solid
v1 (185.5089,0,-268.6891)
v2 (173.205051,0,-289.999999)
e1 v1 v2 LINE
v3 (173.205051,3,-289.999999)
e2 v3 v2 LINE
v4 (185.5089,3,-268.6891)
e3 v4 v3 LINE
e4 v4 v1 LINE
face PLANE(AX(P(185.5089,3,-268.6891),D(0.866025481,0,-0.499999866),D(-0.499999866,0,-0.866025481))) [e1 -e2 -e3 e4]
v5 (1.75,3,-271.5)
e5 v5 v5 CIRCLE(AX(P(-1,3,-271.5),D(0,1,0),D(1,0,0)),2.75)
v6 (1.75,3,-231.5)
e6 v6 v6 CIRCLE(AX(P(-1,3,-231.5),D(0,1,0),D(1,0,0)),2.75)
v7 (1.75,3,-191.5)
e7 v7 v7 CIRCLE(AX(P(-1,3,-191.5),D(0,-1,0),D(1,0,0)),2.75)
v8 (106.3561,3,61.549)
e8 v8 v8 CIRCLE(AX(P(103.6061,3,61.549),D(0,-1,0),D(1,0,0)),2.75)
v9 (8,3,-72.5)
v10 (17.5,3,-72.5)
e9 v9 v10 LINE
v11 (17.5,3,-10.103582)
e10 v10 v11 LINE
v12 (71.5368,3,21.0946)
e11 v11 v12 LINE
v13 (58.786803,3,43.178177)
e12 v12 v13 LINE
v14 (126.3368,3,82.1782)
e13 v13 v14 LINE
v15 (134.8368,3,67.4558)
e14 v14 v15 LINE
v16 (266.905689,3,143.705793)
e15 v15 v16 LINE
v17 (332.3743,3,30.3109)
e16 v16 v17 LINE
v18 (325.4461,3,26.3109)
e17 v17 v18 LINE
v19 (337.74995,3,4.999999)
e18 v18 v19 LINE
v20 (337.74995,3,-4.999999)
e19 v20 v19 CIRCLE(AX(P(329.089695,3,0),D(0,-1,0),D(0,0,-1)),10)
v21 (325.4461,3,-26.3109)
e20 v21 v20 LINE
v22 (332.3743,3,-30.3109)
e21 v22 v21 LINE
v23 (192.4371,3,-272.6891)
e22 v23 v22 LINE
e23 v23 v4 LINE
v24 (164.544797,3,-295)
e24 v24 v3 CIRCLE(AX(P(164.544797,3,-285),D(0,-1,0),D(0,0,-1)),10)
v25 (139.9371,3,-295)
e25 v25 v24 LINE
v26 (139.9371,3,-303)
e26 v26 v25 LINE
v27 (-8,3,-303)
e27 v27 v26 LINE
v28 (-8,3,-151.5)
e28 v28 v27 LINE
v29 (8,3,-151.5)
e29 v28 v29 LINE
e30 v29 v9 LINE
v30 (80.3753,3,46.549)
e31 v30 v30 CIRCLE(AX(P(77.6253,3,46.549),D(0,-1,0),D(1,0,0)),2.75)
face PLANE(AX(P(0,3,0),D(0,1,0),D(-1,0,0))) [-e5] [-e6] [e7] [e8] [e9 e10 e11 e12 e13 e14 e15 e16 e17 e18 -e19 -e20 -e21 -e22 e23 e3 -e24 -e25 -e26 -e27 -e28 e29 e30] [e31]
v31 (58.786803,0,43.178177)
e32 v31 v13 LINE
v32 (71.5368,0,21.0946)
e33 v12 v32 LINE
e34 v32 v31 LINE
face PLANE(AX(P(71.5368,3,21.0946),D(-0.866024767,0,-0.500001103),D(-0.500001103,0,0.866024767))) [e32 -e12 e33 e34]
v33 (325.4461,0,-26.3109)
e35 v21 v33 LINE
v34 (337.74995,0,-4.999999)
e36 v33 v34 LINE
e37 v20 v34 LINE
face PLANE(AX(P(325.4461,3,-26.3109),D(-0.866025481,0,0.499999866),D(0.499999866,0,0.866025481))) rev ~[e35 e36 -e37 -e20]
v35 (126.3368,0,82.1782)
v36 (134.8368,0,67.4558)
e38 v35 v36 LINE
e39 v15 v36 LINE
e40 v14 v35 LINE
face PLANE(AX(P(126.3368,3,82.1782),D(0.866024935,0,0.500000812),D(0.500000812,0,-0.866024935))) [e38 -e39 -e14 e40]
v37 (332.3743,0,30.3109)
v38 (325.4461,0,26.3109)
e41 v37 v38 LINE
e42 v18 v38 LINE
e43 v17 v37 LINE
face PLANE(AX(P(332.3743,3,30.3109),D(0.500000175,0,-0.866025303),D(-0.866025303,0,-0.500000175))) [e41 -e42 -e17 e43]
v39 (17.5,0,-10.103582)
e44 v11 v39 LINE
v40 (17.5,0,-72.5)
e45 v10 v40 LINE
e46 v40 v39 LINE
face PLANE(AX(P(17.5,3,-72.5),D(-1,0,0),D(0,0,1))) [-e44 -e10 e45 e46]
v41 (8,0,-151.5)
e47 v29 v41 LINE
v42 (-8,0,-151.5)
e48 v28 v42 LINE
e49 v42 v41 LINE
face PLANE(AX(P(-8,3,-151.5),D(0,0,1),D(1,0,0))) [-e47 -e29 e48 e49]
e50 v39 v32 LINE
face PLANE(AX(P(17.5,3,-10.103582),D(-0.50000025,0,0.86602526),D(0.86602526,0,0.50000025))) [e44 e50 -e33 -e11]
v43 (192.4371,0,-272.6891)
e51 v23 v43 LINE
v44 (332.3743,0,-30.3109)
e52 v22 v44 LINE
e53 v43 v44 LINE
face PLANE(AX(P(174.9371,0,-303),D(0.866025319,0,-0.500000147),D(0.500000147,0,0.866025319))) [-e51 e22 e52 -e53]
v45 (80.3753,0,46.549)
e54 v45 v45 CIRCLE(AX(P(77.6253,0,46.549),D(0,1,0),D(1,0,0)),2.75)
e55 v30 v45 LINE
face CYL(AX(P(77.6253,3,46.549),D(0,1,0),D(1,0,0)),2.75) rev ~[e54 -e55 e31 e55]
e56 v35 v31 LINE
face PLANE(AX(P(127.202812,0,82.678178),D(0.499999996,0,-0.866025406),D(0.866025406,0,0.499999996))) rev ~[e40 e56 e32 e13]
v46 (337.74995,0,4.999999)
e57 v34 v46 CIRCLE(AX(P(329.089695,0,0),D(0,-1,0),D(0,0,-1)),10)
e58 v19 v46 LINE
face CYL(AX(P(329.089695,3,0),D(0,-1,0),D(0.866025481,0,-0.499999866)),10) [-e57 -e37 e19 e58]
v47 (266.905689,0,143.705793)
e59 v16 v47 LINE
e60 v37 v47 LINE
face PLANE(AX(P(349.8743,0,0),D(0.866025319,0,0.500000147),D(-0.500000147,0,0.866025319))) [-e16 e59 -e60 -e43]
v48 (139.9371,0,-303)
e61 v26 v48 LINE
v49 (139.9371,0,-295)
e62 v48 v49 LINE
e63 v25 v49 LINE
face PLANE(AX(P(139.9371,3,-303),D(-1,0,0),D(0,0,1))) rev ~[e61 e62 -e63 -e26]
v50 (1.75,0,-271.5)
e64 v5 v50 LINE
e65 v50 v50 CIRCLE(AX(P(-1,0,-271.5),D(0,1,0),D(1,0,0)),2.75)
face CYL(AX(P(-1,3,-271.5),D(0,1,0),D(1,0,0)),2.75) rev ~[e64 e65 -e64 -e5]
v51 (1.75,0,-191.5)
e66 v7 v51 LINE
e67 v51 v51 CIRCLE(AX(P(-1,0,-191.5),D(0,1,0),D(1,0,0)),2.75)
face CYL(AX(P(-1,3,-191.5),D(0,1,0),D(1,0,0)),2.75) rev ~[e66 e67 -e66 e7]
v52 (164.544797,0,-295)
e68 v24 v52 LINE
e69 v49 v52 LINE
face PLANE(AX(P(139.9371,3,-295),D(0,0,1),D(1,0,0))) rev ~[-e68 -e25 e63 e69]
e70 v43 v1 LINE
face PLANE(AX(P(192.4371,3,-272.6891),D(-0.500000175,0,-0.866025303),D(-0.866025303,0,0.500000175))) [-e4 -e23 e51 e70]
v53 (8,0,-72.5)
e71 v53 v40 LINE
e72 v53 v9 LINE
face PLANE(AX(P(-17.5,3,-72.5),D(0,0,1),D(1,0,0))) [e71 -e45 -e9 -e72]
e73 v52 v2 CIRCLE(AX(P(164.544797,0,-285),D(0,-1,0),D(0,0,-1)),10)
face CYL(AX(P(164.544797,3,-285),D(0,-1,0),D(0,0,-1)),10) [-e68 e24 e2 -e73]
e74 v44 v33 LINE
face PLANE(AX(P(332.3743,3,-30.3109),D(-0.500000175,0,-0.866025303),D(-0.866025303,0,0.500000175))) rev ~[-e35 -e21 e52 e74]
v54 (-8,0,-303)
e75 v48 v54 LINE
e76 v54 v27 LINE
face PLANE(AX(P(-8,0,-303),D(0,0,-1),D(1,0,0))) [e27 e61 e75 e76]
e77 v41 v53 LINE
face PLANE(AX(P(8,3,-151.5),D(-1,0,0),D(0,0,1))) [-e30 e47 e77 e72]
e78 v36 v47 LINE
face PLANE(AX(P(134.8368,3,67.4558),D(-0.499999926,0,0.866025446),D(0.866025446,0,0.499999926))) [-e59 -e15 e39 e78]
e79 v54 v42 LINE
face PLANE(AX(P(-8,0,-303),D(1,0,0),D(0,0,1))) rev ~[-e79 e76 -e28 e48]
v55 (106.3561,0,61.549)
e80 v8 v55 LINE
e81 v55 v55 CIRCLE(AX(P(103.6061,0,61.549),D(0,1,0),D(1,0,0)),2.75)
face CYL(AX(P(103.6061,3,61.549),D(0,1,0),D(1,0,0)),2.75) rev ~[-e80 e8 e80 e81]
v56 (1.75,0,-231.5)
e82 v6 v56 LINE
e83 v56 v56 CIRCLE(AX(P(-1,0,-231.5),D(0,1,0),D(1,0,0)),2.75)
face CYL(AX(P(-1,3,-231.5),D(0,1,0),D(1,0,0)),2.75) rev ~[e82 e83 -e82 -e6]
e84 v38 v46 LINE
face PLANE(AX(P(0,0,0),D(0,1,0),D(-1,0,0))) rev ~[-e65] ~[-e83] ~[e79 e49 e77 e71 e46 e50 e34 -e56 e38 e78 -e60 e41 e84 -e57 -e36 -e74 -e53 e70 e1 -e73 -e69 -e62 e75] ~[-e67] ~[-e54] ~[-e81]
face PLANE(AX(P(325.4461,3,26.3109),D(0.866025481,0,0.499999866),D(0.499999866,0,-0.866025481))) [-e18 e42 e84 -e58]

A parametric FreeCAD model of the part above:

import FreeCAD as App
import Part
import Sketcher

V = App.Vector
Q = App.Units.Quantity


def edges_at(feature, points):
    """Names of the edges that pass closest to the given points."""
    edges = feature.Shape.Edges
    near = lambda p: min(range(len(edges)), key=lambda i: edges[i].distToShape(Part.Vertex(*p))[0])
    return sorted({f"Edge{near(p) + 1}" for p in points})


def add_polygon(sketch, points):
    """Adds a closed chain of lines whose ends are joined by coincident constraints."""
    first, n = sketch.GeometryCount, len(points)
    for a, b in zip(points, points[1:] + points[:1]):
        sketch.addGeometry(Part.LineSegment(App.Vector(*a, 0), App.Vector(*b, 0)), False)
    for i in range(n):
        sketch.addConstraint(Sketcher.Constraint("Coincident", first + i, 2, first + (i + 1) % n, 1))

doc = App.newDocument("Part")
body = doc.addObject("PartDesign::Body", "Body")

sketch1 = body.newObject("Sketcher::SketchObject", "Sketch")
sketch1.AttachmentSupport = (doc.getObject("XZ_Plane"), [""])
sketch1.MapMode = "FlatFace"
add_polygon(sketch1, [(-8, -303), (-8, 0), (-3.2, 5.5), (-4, 6.9), (258.4, 158.4), (349.9, 0), (174.9, -303)])
sketch1.addConstraint(Sketcher.Constraint("Vertical", 0))
sketch1.addConstraint(Sketcher.Constraint("Horizontal", 6))
sketch1.addConstraint(Sketcher.Constraint("PointOnObject", 0, 2, -1))
sketch1.addConstraint(Sketcher.Constraint("PointOnObject", 4, 2, -1))
sketch1.addConstraint(Sketcher.Constraint("Perpendicular", 2, 3))
sketch1.addConstraint(Sketcher.Constraint("Perpendicular", 3, 4))
sketch1.addConstraint(Sketcher.Constraint("DistanceY", 0, 1, 0, 2, Q("303 mm")))
sketch1.addConstraint(Sketcher.Constraint("Distance", 3, Q("303 mm")))
sketch1.addConstraint(Sketcher.Constraint("DistanceX", 0, 2, -1, 1, Q("8 mm")))
sketch1.addConstraint(Sketcher.Constraint("Angle", 2, Q("120 deg")))
sketch1.addConstraint(Sketcher.Constraint("Angle", 5, Q("-120 deg")))
sketch1.addConstraint(Sketcher.Constraint("DistanceX", 2, 2, -1, 1, Q("4 mm")))
sketch1.addConstraint(Sketcher.Constraint("Distance", 2, Q("1.6 mm")))
sketch1.addConstraint(Sketcher.Constraint("DistanceX", 6, 2, 6, 1, Q("182.937 mm")))
pad1 = body.newObject("PartDesign::Pad", "Pad")
pad1.Profile = sketch1
pad1.Length = 3
pad1.Reversed = True

sketch2 = body.newObject("Sketcher::SketchObject", "Sketch001")
sketch2.AttachmentSupport = (doc.getObject("XZ_Plane"), [""])
sketch2.MapMode = "FlatFace"
sketch2.AttachmentOffset = App.Placement(V(0, 0, -3), App.Rotation())
add_polygon(sketch2, [(8, -152), (-8, -152), (-8, 0), (8, 0)])
add_polygon(sketch2, [(135, 67), (126, 82), (258, 158), (267, 144)])
sketch2.addConstraint(Sketcher.Constraint("Horizontal", 0))
sketch2.addConstraint(Sketcher.Constraint("Vertical", 1))
sketch2.addConstraint(Sketcher.Constraint("Horizontal", 2))
sketch2.addConstraint(Sketcher.Constraint("Vertical", 3))
sketch2.addConstraint(Sketcher.Constraint("Symmetric", 1, 2, 2, 2, -1, 1))
sketch2.addConstraint(Sketcher.Constraint("Perpendicular", 4, 5))
sketch2.addConstraint(Sketcher.Constraint("Perpendicular", 5, 6))
sketch2.addConstraint(Sketcher.Constraint("Perpendicular", 6, 7))
sketch2.addConstraint(Sketcher.Constraint("DistanceX", 0, 2, 0, 1, Q("16 mm")))
sketch2.addConstraint(Sketcher.Constraint("Distance", 4, Q("17 mm")))
sketch2.addConstraint(Sketcher.Constraint("DistanceY", 1, 1, 1, 2, Q("151.5 mm")))
sketch2.addConstraint(Sketcher.Constraint("Distance", 5, Q("152.5 mm")))
sketch2.addConstraint(Sketcher.Constraint("Angle", 4, Q("120 deg")))
sketch2.addConstraint(Sketcher.Constraint("DistanceX", -1, 1, 4, 2, Q("126.3368 mm")))
sketch2.addConstraint(Sketcher.Constraint("DistanceY", -1, 1, 4, 2, Q("82.1782 mm")))
pocket1 = body.newObject("PartDesign::Pocket", "Pocket")
pocket1.Profile = sketch2
pocket1.Length = 3
pocket1.Reversed = True

sketch3 = body.newObject("Sketcher::SketchObject", "Sketch002")
sketch3.AttachmentSupport = (doc.getObject("XZ_Plane"), [""])
sketch3.MapMode = "FlatFace"
sketch3.AttachmentOffset = App.Placement(V(0, 0, -3), App.Rotation())
add_polygon(sketch3, [(140, -295), (170, -295), (186, -269), (192, -273), (175, -303), (140, -303)])
add_polygon(sketch3, [(350, 0), (332, -30), (325, -26), (341, 0), (325, 26), (332, 30)])
sketch3.addConstraint(Sketcher.Constraint("Horizontal", 0))
sketch3.addConstraint(Sketcher.Constraint("Horizontal", 4))
sketch3.addConstraint(Sketcher.Constraint("Vertical", 5))
sketch3.addConstraint(Sketcher.Constraint("Symmetric", 7, 2, 9, 2, -1))
sketch3.addConstraint(Sketcher.Constraint("Symmetric", 6, 2, 10, 2, -1))
sketch3.addConstraint(Sketcher.Constraint("PointOnObject", 8, 2, -1))
sketch3.addConstraint(Sketcher.Constraint("PointOnObject", 11, 2, -1))
sketch3.addConstraint(Sketcher.Constraint("Perpendicular", 1, 2))
sketch3.addConstraint(Sketcher.Constraint("Perpendicular", 2, 3))
sketch3.addConstraint(Sketcher.Constraint("Parallel", 3, 6))
sketch3.addConstraint(Sketcher.Constraint("Perpendicular", 6, 7))
sketch3.addConstraint(Sketcher.Constraint("Perpendicular", 7, 8))
sketch3.addConstraint(Sketcher.Constraint("Equal", 3, 6))
sketch3.addConstraint(Sketcher.Constraint("Equal", 2, 7))
sketch3.addConstraint(Sketcher.Constraint("Equal", 1, 8))
sketch3.addConstraint(Sketcher.Constraint("DistanceX", 4, 2, 4, 1, Q("35 mm")))
sketch3.addConstraint(Sketcher.Constraint("DistanceY", 5, 1, 5, 2, Q("8 mm")))
sketch3.addConstraint(Sketcher.Constraint("Angle", 3, Q("-120 deg")))
sketch3.addConstraint(Sketcher.Constraint("Distance", 3, Q("35 mm")))
sketch3.addConstraint(Sketcher.Constraint("DistanceY", 0, 2, -1, 1, Q("295 mm")))
sketch3.addConstraint(Sketcher.Constraint("DistanceX", -1, 1, 1, 2, Q("185.509 mm")))
sketch3.addConstraint(Sketcher.Constraint("DistanceX", -1, 1, 7, 2, Q("325.446 mm")))
pocket2 = body.newObject("PartDesign::Pocket", "Pocket001")
pocket2.Profile = sketch3
pocket2.Length = 3
pocket2.Reversed = True

sketch4 = body.newObject("Sketcher::SketchObject", "Sketch003")
sketch4.AttachmentSupport = (doc.getObject("XZ_Plane"), [""])
sketch4.MapMode = "FlatFace"
sketch4.AttachmentOffset = App.Placement(V(0, 0, -3), App.Rotation())
add_polygon(sketch4, [(-18, -30), (-54, -51), (-72, -21), (-18, 10), (-18, 72), (18, 72), (18, 30), (54, 51), (72, 21), (18, -10), (18, -72), (-18, -72)])
sketch4.addConstraint(Sketcher.Constraint("Vertical", 3))
sketch4.addConstraint(Sketcher.Constraint("Horizontal", 4))
sketch4.addConstraint(Sketcher.Constraint("Vertical", 5))
sketch4.addConstraint(Sketcher.Constraint("Vertical", 9))
sketch4.addConstraint(Sketcher.Constraint("Horizontal", 10))
sketch4.addConstraint(Sketcher.Constraint("Vertical", 11))
sketch4.addConstraint(Sketcher.Constraint("Symmetric", 0, 2, 6, 2, -1, 1))
sketch4.addConstraint(Sketcher.Constraint("Symmetric", 1, 2, 7, 2, -1, 1))
sketch4.addConstraint(Sketcher.Constraint("Symmetric", 2, 2, 8, 2, -1, 1))
sketch4.addConstraint(Sketcher.Constraint("Symmetric", 4, 2, 10, 2, -1, 1))
sketch4.addConstraint(Sketcher.Constraint("Perpendicular", 0, 1))
sketch4.addConstraint(Sketcher.Constraint("Perpendicular", 1, 2))
sketch4.addConstraint(Sketcher.Constraint("Parallel", 2, 6))
sketch4.addConstraint(Sketcher.Constraint("Vertical", 5, 2, 8, 2))
sketch4.addConstraint(Sketcher.Constraint("DistanceX", 4, 1, 4, 2, Q("35 mm")))
sketch4.addConstraint(Sketcher.Constraint("Angle", 2, Q("30 deg")))
sketch4.addConstraint(Sketcher.Constraint("Distance", 1, Q("35 mm")))
sketch4.addConstraint(Sketcher.Constraint("DistanceY", -1, 1, 3, 2, Q("72.5 mm")))
sketch4.addConstraint(Sketcher.Constraint("DistanceY", 1, 2, 6, 2, Q("72.5 mm")))
sketch4.addConstraint(Sketcher.Constraint("Distance", 0, Q("42.189 mm")))
pocket3 = body.newObject("PartDesign::Pocket", "Pocket002")
pocket3.Profile = sketch4
pocket3.Length = 3
pocket3.Reversed = True

sketch5 = body.newObject("Sketcher::SketchObject", "Sketch004")
sketch5.AttachmentSupport = (doc.getObject("XZ_Plane"), [""])
sketch5.MapMode = "FlatFace"
sketch5.AttachmentOffset = App.Placement(V(0, 0, -3), App.Rotation())
sketch5.addGeometry(Part.Circle(V(-1, -191.5, 0), V(0, 0, 1), 2.8), False)
sketch5.addGeometry(Part.Circle(V(-1, -231.5, 0), V(0, 0, 1), 2.8), False)
sketch5.addGeometry(Part.Circle(V(-1, -271.5, 0), V(0, 0, 1), 2.8), False)
sketch5.addGeometry(Part.Circle(V(103.6, 61.5, 0), V(0, 0, 1), 2.8), False)
sketch5.addGeometry(Part.Circle(V(77.6, 46.5, 0), V(0, 0, 1), 2.8), False)
sketch5.addConstraint(Sketcher.Constraint("Equal", 0, 1))
sketch5.addConstraint(Sketcher.Constraint("Equal", 1, 2))
sketch5.addConstraint(Sketcher.Constraint("Equal", 2, 3))
sketch5.addConstraint(Sketcher.Constraint("Equal", 3, 4))
sketch5.addConstraint(Sketcher.Constraint("Vertical", 0, 3, 1, 3))
sketch5.addConstraint(Sketcher.Constraint("Vertical", 1, 3, 2, 3))
sketch5.addConstraint(Sketcher.Constraint("Diameter", 0, Q("5.5 mm")))
sketch5.addConstraint(Sketcher.Constraint("DistanceX", 0, 3, -1, 1, Q("1 mm")))
sketch5.addConstraint(Sketcher.Constraint("DistanceY", 1, 3, 0, 3, Q("40 mm")))
sketch5.addConstraint(Sketcher.Constraint("DistanceY", 2, 3, 1, 3, Q("40 mm")))
sketch5.addConstraint(Sketcher.Constraint("DistanceY", 4, 3, 3, 3, Q("15 mm")))
sketch5.addConstraint(Sketcher.Constraint("DistanceY", 0, 3, -1, 1, Q("191.5 mm")))
sketch5.addConstraint(Sketcher.Constraint("DistanceX", -1, 1, 3, 3, Q("103.606 mm")))
sketch5.addConstraint(Sketcher.Constraint("DistanceY", -1, 1, 3, 3, Q("61.549 mm")))
sketch5.addConstraint(Sketcher.Constraint("DistanceX", -1, 1, 4, 3, Q("77.6253 mm")))
pocket4 = body.newObject("PartDesign::Pocket", "Pocket003")
pocket4.Profile = sketch5
pocket4.Length = 3
pocket4.Reversed = True
doc.recompute()

fillet = body.newObject("PartDesign::Fillet", "Fillet")
fillet.Base = (pocket4, edges_at(pocket4, [(340.637, 1.5, 0), (170.318, 1.5, -295)]))
fillet.Radius = 10

doc.recompute()
